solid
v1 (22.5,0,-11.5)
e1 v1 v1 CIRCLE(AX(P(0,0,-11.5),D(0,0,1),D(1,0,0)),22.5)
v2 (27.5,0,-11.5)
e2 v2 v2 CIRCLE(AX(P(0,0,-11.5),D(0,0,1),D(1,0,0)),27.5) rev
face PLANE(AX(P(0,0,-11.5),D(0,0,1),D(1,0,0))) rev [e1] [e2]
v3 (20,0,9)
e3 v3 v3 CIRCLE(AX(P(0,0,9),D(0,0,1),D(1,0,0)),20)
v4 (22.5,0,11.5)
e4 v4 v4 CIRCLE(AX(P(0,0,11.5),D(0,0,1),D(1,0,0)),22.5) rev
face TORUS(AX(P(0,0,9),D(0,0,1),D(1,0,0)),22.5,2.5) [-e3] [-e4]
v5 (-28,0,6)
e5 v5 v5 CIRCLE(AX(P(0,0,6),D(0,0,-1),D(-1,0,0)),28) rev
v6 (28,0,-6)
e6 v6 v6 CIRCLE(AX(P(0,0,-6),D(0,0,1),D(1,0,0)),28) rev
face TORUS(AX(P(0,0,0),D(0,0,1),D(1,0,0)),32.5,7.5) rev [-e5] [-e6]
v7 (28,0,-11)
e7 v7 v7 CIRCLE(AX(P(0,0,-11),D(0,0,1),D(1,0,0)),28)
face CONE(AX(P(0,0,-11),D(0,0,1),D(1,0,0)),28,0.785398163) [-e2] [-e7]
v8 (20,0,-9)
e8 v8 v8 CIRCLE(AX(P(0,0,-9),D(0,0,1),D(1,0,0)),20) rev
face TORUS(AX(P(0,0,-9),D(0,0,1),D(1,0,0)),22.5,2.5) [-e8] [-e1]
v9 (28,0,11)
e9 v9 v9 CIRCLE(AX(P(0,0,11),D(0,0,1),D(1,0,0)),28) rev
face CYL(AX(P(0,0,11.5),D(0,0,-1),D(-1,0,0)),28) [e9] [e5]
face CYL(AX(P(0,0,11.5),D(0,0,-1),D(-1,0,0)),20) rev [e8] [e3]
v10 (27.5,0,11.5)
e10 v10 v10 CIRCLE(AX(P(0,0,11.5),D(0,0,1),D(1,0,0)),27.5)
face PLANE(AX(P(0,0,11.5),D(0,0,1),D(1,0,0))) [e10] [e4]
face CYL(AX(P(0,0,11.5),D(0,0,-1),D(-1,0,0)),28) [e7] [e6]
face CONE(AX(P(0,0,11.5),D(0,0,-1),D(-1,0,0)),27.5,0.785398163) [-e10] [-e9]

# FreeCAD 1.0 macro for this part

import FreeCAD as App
import Part
import Sketcher
from FreeCAD import Vector
Q = App.Units.Quantity


def edges_at(feature, points):
    """Names of the edges that pass closest to the given points."""
    edges = feature.Shape.Edges
    near = lambda p: min(range(len(edges)), key=lambda i: edges[i].distToShape(Part.Vertex(*p))[0])
    return sorted({f"Edge{near(p) + 1}" for p in points})

doc = App.newDocument("Part")
params = doc.addObject("Spreadsheet::Sheet", "Params")
for row, (alias, value) in enumerate([
    ("sketch1_diameter", "56 mm"),
    ("sketch1_diameter2", "40 mm"),
    ("pad1_length", "23 mm"),
    ("sketch2_diameter", "15 mm"),
    ("groove_angle", "360 deg"),
    ("chamfer_size", "0.5 mm"),
    ("fillet_radius", "2.5 mm"),
], start=1):
    params.set(f"A{row}", alias)
    params.set(f"B{row}", "=" + value)
    params.setAlias(f"B{row}", alias)

body = doc.addObject("PartDesign::Body", "Body")

sketch1 = doc.addObject("Sketcher::SketchObject", "Sketch")
body.addObject(sketch1)
sketch1.AttachmentSupport = (doc.XY_Plane, [""])
sketch1.MapMode = "FlatFace"
sketch1.addGeometry(Part.Circle(Vector(0, 0, 0), Vector(0, 0, 1), 28), False)
sketch1.addGeometry(Part.Circle(Vector(0, 0, 0), Vector(0, 0, 1), 20), False)
sketch1.addConstraint(Sketcher.Constraint("Coincident", 0, 3, -1, 1))
sketch1.addConstraint(Sketcher.Constraint("Coincident", 1, 3, -1, 1))
sketch1.addConstraint(Sketcher.Constraint("Diameter", 0, Q("56 mm")))
sketch1.addConstraint(Sketcher.Constraint("Diameter", 1, Q("40 mm")))
sketch1.setExpression("Constraints[2]", "Params.sketch1_diameter")
sketch1.setExpression("Constraints[3]", "Params.sketch1_diameter2")
pad1 = doc.addObject("PartDesign::Pad", "Pad")
body.addObject(pad1)
pad1.Profile = sketch1
pad1.setExpression("Length", "Params.pad1_length")
pad1.Midplane = True

sketch2 = doc.addObject("Sketcher::SketchObject", "Sketch001")
body.addObject(sketch2)
sketch2.AttachmentSupport = (doc.XZ_Plane, [""])
sketch2.MapMode = "FlatFace"
sketch2.addGeometry(Part.Circle(Vector(32, 0, 0), Vector(0, 0, 1), 8), False)
sketch2.addConstraint(Sketcher.Constraint("PointOnObject", 0, 3, -1))
sketch2.addConstraint(Sketcher.Constraint("Diameter", 0, Q("15 mm")))
sketch2.addConstraint(Sketcher.Constraint("DistanceX", -1, 1, 0, 3, Q("32.5 mm")))
sketch2.setExpression("Constraints[1]", "Params.sketch2_diameter")
groove = doc.addObject("PartDesign::Groove", "Groove")
body.addObject(groove)
groove.Profile = sketch2
groove.ReferenceAxis = (sketch2, ["V_Axis"])
groove.setExpression("Angle", "Params.groove_angle")
doc.recompute()

chamfer = doc.addObject("PartDesign::Chamfer", "Chamfer")
body.addObject(chamfer)
chamfer.Base = (groove, edges_at(groove, [(-28, 0, -11.5), (-28, 0, 11.5)]))
chamfer.setExpression("Size", "Params.chamfer_size")
doc.recompute()

fillet = doc.addObject("PartDesign::Fillet", "Fillet")
body.addObject(fillet)
fillet.Base = (chamfer, edges_at(chamfer, [(-20, 0, -11.5), (-20, 0, 11.5)]))
fillet.setExpression("Radius", "Params.fillet_radius")

doc.recompute()
